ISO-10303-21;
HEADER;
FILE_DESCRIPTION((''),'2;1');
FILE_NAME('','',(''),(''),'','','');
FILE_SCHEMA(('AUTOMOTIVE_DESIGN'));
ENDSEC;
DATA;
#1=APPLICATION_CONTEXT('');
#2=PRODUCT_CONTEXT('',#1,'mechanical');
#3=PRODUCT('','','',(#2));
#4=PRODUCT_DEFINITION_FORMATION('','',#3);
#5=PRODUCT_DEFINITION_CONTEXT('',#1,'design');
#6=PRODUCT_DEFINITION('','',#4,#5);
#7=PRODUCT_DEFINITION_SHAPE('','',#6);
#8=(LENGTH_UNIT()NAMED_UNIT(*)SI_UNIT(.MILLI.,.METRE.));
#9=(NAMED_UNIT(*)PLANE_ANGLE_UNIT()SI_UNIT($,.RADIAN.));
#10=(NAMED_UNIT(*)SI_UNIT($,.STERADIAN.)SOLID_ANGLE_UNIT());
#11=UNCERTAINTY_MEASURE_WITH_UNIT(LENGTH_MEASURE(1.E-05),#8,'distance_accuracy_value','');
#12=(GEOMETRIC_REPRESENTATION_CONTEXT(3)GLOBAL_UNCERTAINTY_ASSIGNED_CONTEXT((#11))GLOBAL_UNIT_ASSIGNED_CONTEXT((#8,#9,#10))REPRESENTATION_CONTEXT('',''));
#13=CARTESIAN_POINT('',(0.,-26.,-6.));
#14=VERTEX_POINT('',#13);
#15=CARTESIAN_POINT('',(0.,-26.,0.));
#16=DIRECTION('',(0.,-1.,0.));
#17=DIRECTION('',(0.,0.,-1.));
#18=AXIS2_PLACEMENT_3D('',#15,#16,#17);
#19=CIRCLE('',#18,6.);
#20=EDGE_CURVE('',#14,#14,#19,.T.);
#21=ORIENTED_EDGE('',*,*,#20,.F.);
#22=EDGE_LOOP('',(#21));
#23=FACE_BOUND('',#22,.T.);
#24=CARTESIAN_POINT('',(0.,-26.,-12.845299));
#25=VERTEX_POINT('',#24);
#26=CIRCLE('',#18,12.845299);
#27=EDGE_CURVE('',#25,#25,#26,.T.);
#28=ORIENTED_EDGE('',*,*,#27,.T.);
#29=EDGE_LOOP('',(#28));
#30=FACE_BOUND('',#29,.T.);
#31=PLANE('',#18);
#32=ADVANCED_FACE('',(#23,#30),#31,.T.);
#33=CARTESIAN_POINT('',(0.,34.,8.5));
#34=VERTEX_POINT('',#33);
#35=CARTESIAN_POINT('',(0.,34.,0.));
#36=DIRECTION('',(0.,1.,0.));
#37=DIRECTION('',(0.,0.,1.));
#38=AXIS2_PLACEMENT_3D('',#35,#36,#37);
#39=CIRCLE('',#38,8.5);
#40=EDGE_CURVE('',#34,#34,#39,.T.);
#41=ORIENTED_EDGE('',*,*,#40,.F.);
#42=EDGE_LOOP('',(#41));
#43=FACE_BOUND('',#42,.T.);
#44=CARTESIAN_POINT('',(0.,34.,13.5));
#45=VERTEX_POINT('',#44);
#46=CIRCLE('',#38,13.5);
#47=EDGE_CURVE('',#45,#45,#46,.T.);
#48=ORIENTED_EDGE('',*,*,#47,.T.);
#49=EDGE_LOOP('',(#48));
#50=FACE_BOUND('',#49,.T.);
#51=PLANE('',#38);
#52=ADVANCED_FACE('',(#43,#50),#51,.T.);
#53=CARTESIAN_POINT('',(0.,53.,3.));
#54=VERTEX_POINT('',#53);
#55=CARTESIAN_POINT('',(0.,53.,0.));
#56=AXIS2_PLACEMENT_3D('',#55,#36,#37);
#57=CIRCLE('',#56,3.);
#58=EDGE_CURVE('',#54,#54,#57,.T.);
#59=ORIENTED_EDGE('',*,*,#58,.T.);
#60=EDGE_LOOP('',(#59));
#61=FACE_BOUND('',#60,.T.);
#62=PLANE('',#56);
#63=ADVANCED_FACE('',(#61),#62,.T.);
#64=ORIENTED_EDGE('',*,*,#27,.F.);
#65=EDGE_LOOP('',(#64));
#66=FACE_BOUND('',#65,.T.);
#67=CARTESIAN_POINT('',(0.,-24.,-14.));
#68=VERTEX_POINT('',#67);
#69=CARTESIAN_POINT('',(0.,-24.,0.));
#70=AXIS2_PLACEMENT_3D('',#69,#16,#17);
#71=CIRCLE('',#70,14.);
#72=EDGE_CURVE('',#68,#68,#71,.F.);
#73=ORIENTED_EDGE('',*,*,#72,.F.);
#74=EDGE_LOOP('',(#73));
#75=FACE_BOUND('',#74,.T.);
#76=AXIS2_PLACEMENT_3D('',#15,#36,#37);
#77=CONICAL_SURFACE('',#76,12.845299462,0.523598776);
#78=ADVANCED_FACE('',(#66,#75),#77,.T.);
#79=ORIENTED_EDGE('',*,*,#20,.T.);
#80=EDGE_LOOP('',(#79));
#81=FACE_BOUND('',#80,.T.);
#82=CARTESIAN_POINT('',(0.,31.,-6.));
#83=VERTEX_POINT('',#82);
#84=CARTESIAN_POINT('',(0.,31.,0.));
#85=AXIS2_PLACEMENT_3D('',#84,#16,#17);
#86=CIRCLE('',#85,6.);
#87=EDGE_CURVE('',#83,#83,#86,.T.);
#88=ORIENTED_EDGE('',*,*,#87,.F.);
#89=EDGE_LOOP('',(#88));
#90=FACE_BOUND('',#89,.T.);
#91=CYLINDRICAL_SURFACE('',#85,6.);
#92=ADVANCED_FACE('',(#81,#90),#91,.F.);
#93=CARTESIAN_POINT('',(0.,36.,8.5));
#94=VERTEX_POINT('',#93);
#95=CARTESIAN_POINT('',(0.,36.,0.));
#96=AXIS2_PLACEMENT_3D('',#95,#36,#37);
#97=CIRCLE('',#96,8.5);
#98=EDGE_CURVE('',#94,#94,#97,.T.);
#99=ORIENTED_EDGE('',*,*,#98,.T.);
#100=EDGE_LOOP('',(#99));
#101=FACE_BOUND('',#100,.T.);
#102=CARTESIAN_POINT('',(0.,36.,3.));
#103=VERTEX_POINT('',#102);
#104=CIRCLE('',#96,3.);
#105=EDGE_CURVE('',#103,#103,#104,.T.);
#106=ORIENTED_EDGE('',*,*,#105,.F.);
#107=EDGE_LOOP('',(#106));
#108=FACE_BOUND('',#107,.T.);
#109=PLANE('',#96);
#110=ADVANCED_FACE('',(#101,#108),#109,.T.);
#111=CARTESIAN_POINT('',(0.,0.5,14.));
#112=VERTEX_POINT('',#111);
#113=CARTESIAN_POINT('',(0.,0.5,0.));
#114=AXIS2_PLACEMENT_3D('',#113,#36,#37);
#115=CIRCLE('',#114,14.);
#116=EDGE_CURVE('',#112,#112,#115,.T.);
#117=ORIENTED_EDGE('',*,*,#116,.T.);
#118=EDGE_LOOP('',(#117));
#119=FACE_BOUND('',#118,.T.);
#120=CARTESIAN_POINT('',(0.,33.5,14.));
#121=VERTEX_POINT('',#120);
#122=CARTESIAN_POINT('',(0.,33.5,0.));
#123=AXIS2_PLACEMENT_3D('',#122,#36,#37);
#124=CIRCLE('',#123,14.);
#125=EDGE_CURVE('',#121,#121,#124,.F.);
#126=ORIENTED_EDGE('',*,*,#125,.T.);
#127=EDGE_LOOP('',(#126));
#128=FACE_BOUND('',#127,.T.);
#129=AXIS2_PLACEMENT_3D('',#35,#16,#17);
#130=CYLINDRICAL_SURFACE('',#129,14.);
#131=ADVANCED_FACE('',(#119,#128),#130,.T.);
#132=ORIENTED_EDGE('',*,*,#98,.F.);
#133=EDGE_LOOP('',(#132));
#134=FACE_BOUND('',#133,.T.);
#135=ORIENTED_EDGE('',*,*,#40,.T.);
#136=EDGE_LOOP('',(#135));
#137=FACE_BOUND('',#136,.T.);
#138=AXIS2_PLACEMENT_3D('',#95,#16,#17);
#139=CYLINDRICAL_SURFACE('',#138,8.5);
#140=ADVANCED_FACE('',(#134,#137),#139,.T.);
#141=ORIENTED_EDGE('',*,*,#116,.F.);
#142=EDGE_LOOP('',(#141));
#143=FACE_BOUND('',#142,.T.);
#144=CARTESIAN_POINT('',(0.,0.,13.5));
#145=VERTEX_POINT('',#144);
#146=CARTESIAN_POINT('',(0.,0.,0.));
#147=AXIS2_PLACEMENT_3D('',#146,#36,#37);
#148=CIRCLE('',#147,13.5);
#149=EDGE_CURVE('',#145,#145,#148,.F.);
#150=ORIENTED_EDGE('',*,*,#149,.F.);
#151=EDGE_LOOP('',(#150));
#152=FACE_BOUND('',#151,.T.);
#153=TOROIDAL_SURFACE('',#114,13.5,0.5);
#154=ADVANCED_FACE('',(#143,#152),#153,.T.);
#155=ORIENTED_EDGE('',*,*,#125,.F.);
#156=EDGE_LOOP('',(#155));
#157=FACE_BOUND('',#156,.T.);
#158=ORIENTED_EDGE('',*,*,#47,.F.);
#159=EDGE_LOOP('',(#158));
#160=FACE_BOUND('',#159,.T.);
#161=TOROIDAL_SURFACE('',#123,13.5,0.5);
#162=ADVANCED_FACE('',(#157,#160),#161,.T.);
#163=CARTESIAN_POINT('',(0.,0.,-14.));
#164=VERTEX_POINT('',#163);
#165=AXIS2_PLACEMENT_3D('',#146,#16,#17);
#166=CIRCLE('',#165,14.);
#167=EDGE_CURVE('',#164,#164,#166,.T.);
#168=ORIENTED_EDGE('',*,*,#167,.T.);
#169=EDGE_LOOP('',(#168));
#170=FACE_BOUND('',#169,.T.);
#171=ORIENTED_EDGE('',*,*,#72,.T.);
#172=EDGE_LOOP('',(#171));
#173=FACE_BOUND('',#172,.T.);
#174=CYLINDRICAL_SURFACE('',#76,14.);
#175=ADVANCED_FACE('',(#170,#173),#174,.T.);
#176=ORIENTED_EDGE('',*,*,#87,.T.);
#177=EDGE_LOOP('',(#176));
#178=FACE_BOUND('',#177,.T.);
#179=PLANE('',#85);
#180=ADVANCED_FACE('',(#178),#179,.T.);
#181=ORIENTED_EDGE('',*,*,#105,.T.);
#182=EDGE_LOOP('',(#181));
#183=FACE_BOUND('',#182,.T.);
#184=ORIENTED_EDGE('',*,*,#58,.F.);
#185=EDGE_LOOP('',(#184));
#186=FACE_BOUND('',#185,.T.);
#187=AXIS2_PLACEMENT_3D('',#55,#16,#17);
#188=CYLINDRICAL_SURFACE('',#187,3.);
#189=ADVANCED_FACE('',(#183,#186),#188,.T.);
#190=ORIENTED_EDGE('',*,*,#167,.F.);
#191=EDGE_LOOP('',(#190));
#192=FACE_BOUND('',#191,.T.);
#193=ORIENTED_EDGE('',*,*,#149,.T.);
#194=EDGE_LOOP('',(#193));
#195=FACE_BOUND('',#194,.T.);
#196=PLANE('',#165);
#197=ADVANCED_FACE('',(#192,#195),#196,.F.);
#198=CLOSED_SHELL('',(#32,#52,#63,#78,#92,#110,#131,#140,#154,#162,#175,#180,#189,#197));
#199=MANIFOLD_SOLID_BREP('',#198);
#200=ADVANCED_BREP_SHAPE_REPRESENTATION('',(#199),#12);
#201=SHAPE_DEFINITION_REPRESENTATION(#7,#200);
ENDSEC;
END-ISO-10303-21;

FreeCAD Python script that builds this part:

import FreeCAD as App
import Part
import Sketcher

V = App.Vector


def edges_at(feature, points):
    """Names of the edges that pass closest to the given points."""
    edges = feature.Shape.Edges
    near = lambda p: min(range(len(edges)), key=lambda i: edges[i].distToShape(Part.Vertex(*p))[0])
    return sorted({f"Edge{near(p) + 1}" for p in points})

doc = App.newDocument("Part")
body = doc.addObject("PartDesign::Body", "Body")

# Sketch on XZ plane
sketch1 = doc.addObject("Sketcher::SketchObject", "Sketch")
body.addObject(sketch1)
sketch1.AttachmentSupport = (doc.XZ_Plane, [""])
sketch1.MapMode = "FlatFace"
sketch1.addGeometry(Part.Circle(V(0, 0, 0), V(0, 0, 1), 14), False)
sketch1.addConstraint([
    Sketcher.Constraint("Coincident", 0, 3, -1, 1),
    Sketcher.Constraint("Diameter", 0, 28.0),
])
pad1 = doc.addObject("PartDesign::Pad", "Pad")
body.addObject(pad1)
pad1.Profile = sketch1
pad1.Length = 34
pad1.Reversed = True

# Sketch on XZ plane
sketch2 = doc.addObject("Sketcher::SketchObject", "Sketch001")
body.addObject(sketch2)
sketch2.AttachmentSupport = (doc.XZ_Plane, [""])
sketch2.MapMode = "FlatFace"
sketch2.AttachmentOffset = App.Placement(V(0, 0, -34), App.Rotation())
sketch2.addGeometry(Part.Circle(V(0, 0, 0), V(0, 0, 1), 8.5), False)
sketch2.addConstraint([
    Sketcher.Constraint("Coincident", 0, 3, -1, 1),
    Sketcher.Constraint("Diameter", 0, 17.0),
])
pad2 = doc.addObject("PartDesign::Pad", "Pad001")
body.addObject(pad2)
pad2.Profile = sketch2
pad2.Length = 2
pad2.Reversed = True

# Sketch on XZ plane
sketch3 = doc.addObject("Sketcher::SketchObject", "Sketch002")
body.addObject(sketch3)
sketch3.AttachmentSupport = (doc.XZ_Plane, [""])
sketch3.MapMode = "FlatFace"
sketch3.AttachmentOffset = App.Placement(V(0, 0, -36), App.Rotation())
sketch3.addGeometry(Part.Circle(V(0, 0, 0), V(0, 0, 1), 3), False)
sketch3.addConstraint([
    Sketcher.Constraint("Coincident", 0, 3, -1, 1),
    Sketcher.Constraint("Diameter", 0, 6.0),
])
pad3 = doc.addObject("PartDesign::Pad", "Pad002")
body.addObject(pad3)
pad3.Profile = sketch3
pad3.Length = 17
pad3.Reversed = True
doc.recompute()

fillet = doc.addObject("PartDesign::Fillet", "Fillet")
body.addObject(fillet)
fillet.Base = (pad3, edges_at(pad3, [(-14, 0, 0), (-14, 34, 0)]))
fillet.Radius = 0.5

# Sketch on XZ plane
sketch4 = doc.addObject("Sketcher::SketchObject", "Sketch003")
body.addObject(sketch4)
sketch4.AttachmentSupport = (doc.XZ_Plane, [""])
sketch4.MapMode = "FlatFace"
sketch4.addGeometry(Part.Circle(V(0, 0, 0), V(0, 0, 1), 14), False)
sketch4.addConstraint([
    Sketcher.Constraint("Coincident", 0, 3, -1, 1),
    Sketcher.Constraint("Diameter", 0, 28.0),
])
pad4 = doc.addObject("PartDesign::Pad", "Pad003")
body.addObject(pad4)
pad4.Profile = sketch4
pad4.Length = 26
doc.recompute()

chamfer = doc.addObject("PartDesign::Chamfer", "Chamfer")
body.addObject(chamfer)
chamfer.Base = (pad4, edges_at(pad4, [(-14, -26, 0)]))
chamfer.ChamferType = "Two distances"
chamfer.Size = 2
chamfer.Size2 = 1.154701

# Sketch on XZ plane
sketch5 = doc.addObject("Sketcher::SketchObject", "Sketch004")
body.addObject(sketch5)
sketch5.AttachmentSupport = (doc.XZ_Plane, [""])
sketch5.MapMode = "FlatFace"
sketch5.AttachmentOffset = App.Placement(V(0, 0, 26), App.Rotation())
sketch5.addGeometry(Part.Circle(V(0, 0, 0), V(0, 0, 1), 6), False)
sketch5.addConstraint([
    Sketcher.Constraint("Coincident", 0, 3, -1, 1),
    Sketcher.Constraint("Diameter", 0, 12.0),
])
pocket1 = doc.addObject("PartDesign::Pocket", "Pocket")
body.addObject(pocket1)
pocket1.Profile = sketch5
pocket1.Length = 57

doc.recompute()
